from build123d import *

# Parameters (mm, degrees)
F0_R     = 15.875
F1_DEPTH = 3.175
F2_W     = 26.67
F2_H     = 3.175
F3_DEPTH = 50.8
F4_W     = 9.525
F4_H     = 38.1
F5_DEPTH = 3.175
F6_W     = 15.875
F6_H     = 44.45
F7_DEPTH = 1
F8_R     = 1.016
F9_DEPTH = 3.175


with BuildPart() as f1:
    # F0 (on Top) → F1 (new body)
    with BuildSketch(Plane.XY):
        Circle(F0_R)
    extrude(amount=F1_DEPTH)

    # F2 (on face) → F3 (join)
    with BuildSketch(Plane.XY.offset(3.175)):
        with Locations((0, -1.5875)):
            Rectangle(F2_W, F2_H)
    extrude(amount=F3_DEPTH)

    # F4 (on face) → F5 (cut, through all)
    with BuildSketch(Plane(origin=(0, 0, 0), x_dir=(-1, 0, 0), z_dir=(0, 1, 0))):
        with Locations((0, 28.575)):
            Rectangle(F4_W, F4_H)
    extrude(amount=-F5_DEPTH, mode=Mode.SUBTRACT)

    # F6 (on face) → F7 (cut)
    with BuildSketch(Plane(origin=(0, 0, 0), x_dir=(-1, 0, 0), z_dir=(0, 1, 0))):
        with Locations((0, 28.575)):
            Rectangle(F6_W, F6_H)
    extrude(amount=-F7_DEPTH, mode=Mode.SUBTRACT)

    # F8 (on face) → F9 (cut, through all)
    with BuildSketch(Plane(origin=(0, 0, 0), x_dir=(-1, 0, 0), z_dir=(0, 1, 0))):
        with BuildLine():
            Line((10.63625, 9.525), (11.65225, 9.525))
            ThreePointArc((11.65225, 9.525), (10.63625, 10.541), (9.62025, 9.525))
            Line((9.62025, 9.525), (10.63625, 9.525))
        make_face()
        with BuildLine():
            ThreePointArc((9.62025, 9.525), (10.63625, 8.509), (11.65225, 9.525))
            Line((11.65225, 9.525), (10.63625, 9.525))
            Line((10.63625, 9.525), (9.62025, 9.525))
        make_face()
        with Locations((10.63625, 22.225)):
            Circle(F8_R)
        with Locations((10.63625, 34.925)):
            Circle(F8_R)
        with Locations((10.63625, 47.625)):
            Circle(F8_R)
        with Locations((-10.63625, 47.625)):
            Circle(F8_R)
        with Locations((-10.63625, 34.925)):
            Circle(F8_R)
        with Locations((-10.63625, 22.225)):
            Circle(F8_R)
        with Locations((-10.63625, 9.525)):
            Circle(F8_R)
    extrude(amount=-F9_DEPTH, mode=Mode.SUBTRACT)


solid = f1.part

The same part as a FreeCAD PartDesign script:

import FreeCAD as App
import Part
import Sketcher

V = App.Vector
Q = App.Units.Quantity


def add_polygon(sketch, points):
    """Adds a closed chain of lines whose ends are joined by coincident constraints."""
    first, n = sketch.GeometryCount, len(points)
    for a, b in zip(points, points[1:] + points[:1]):
        sketch.addGeometry(Part.LineSegment(App.Vector(*a, 0), App.Vector(*b, 0)), False)
    for i in range(n):
        sketch.addConstraint(Sketcher.Constraint("Coincident", first + i, 2, first + (i + 1) % n, 1))

doc = App.newDocument("Part")
body = doc.addObject("PartDesign::Body", "Body")

# Sketch on XY plane
sketch1 = doc.addObject("Sketcher::SketchObject", "Sketch")
body.addObject(sketch1)
sketch1.AttachmentSupport = (doc.XY_Plane, [""])
sketch1.MapMode = "FlatFace"
sketch1.addGeometry(Part.Circle(V(0, 0, 0), V(0, 0, 1), 15.875), False)
sketch1.addConstraint(Sketcher.Constraint("Coincident", 0, 3, -1, 1))
sketch1.addConstraint(Sketcher.Constraint("Diameter", 0, Q("1.25 in")))
pad1 = doc.addObject("PartDesign::Pad", "Pad")
body.addObject(pad1)
pad1.Profile = sketch1
pad1.Length = Q("0.125 in")

# Sketch on XY plane
sketch2 = doc.addObject("Sketcher::SketchObject", "Sketch001")
body.addObject(sketch2)
sketch2.AttachmentSupport = (doc.XY_Plane, [""])
sketch2.MapMode = "FlatFace"
sketch2.AttachmentOffset = App.Placement(V(0, 0, 0.125 * 25.4), App.Rotation())
add_polygon(sketch2, [(-13.335, 0), (-13.335, -3.175), (13.335, -3.175), (13.335, 0)])  # lines 0-3
sketch2.addConstraint(Sketcher.Constraint("Vertical", 0))
sketch2.addConstraint(Sketcher.Constraint("Horizontal", 1))
sketch2.addConstraint(Sketcher.Constraint("Vertical", 2))
sketch2.addConstraint(Sketcher.Constraint("Horizontal", 3))
sketch2.addConstraint(Sketcher.Constraint("Symmetric", 2, 2, 3, 2, -1, 1))
sketch2.addConstraint(Sketcher.Constraint("DistanceX", 1, 1, 1, 2, Q("1.05 in")))
sketch2.addConstraint(Sketcher.Constraint("DistanceY", 0, 2, 0, 1, Q("0.125 in")))
pad2 = doc.addObject("PartDesign::Pad", "Pad001")
body.addObject(pad2)
pad2.Profile = sketch2
pad2.Length = Q("2 in")

# Sketch on XZ plane
sketch3 = doc.addObject("Sketcher::SketchObject", "Sketch002")
body.addObject(sketch3)
sketch3.AttachmentSupport = (doc.XZ_Plane, [""])
sketch3.MapMode = "FlatFace"
add_polygon(sketch3, [(4.7625, 47.625), (4.7625, 9.525), (-4.7625, 9.525), (-4.7625, 47.625)])  # lines 0-3
sketch3.addConstraint(Sketcher.Constraint("Vertical", 0))
sketch3.addConstraint(Sketcher.Constraint("Horizontal", 1))
sketch3.addConstraint(Sketcher.Constraint("Vertical", 2))
sketch3.addConstraint(Sketcher.Constraint("Horizontal", 3))
sketch3.addConstraint(Sketcher.Constraint("DistanceY", 0, 2, 0, 1, Q("1.5 in")))
sketch3.addConstraint(Sketcher.Constraint("DistanceX", 1, 2, 1, 1, Q("0.375 in")))
sketch3.addConstraint(Sketcher.Constraint("DistanceX", -1, 1, 0, 2, Q("0.1875 in")))
sketch3.addConstraint(Sketcher.Constraint("DistanceY", -1, 1, 0, 2, Q("0.375 in")))
pocket1 = doc.addObject("PartDesign::Pocket", "Pocket")
body.addObject(pocket1)
pocket1.Profile = sketch3
pocket1.Type = "ThroughAll"
pocket1.Reversed = True

# Sketch on XZ plane
sketch4 = doc.addObject("Sketcher::SketchObject", "Sketch003")
body.addObject(sketch4)
sketch4.AttachmentSupport = (doc.XZ_Plane, [""])
sketch4.MapMode = "FlatFace"
add_polygon(sketch4, [(7.9375, 50.8), (7.9375, 6.35), (-7.9375, 6.35), (-7.9375, 50.8)])  # lines 0-3
sketch4.addConstraint(Sketcher.Constraint("Vertical", 0))
sketch4.addConstraint(Sketcher.Constraint("Horizontal", 1))
sketch4.addConstraint(Sketcher.Constraint("Vertical", 2))
sketch4.addConstraint(Sketcher.Constraint("Horizontal", 3))
sketch4.addConstraint(Sketcher.Constraint("DistanceY", -1, 1, 2, 2, Q("2 in")))
sketch4.addConstraint(Sketcher.Constraint("DistanceY", 0, 2, 0, 1, Q("1.75 in")))
sketch4.addConstraint(Sketcher.Constraint("DistanceX", 1, 2, 1, 1, Q("0.625 in")))
sketch4.addConstraint(Sketcher.Constraint("DistanceX", -1, 1, 0, 2, Q("0.3125 in")))
pocket2 = doc.addObject("PartDesign::Pocket", "Pocket001")
body.addObject(pocket2)
pocket2.Profile = sketch4
pocket2.Length = 1
pocket2.Reversed = True

# Sketch on XZ plane
sketch5 = doc.addObject("Sketcher::SketchObject", "Sketch004")
body.addObject(sketch5)
sketch5.AttachmentSupport = (doc.XZ_Plane, [""])
sketch5.MapMode = "FlatFace"
sketch5.addGeometry(Part.Circle(V(-10.63625, 9.525, 0), V(0, 0, 1), 1.016), False)
sketch5.addGeometry(Part.Circle(V(-10.63625, 22.225, 0), V(0, 0, 1), 1.016), False)
sketch5.addGeometry(Part.Circle(V(-10.63625, 34.925, 0), V(0, 0, 1), 1.016), False)
sketch5.addGeometry(Part.Circle(V(-10.63625, 47.625, 0), V(0, 0, 1), 1.016), False)
sketch5.addGeometry(Part.Circle(V(10.63625, 47.625, 0), V(0, 0, 1), 1.016), False)
sketch5.addGeometry(Part.Circle(V(10.63625, 34.925, 0), V(0, 0, 1), 1.016), False)
sketch5.addGeometry(Part.Circle(V(10.63625, 22.225, 0), V(0, 0, 1), 1.016), False)
sketch5.addGeometry(Part.Circle(V(10.63625, 9.525, 0), V(0, 0, 1), 1.016), False)
sketch5.addConstraint(Sketcher.Constraint("Equal", 0, 1))
sketch5.addConstraint(Sketcher.Constraint("Equal", 1, 2))
sketch5.addConstraint(Sketcher.Constraint("Equal", 2, 3))
sketch5.addConstraint(Sketcher.Constraint("Equal", 3, 4))
sketch5.addConstraint(Sketcher.Constraint("Equal", 4, 5))
sketch5.addConstraint(Sketcher.Constraint("Equal", 5, 6))
sketch5.addConstraint(Sketcher.Constraint("Equal", 6, 7))
sketch5.addConstraint(Sketcher.Constraint("Symmetric", 3, 3, 4, 3, -2))
sketch5.addConstraint(Sketcher.Constraint("Symmetric", 2, 3, 5, 3, -2))
sketch5.addConstraint(Sketcher.Constraint("Symmetric", 1, 3, 6, 3, -2))
sketch5.addConstraint(Sketcher.Constraint("Symmetric", 0, 3, 7, 3, -2))
sketch5.addConstraint(Sketcher.Constraint("Vertical", 0, 3, 1, 3))
sketch5.addConstraint(Sketcher.Constraint("Vertical", 1, 3, 2, 3))
sketch5.addConstraint(Sketcher.Constraint("Vertical", 2, 3, 3, 3))
sketch5.addConstraint(Sketcher.Constraint("Diameter", 0, Q("0.08 in")))
sketch5.addConstraint(Sketcher.Constraint("DistanceY", 0, 3, 2, 3, Q("1 in")))
sketch5.addConstraint(Sketcher.Constraint("DistanceY", 1, 3, 3, 3, Q("1 in")))
sketch5.addConstraint(Sketcher.Constraint("DistanceY", 0, 3, 1, 3, Q("0.5 in")))
sketch5.addConstraint(Sketcher.Constraint("DistanceY", -1, 1, 0, 3, Q("0.375 in")))
sketch5.addConstraint(Sketcher.Constraint("DistanceX", 3, 3, 4, 3, Q("0.8375 in")))
pocket3 = doc.addObject("PartDesign::Pocket", "Pocket002")
body.addObject(pocket3)
pocket3.Profile = sketch5
pocket3.Type = "ThroughAll"
pocket3.Reversed = True

doc.recompute()
